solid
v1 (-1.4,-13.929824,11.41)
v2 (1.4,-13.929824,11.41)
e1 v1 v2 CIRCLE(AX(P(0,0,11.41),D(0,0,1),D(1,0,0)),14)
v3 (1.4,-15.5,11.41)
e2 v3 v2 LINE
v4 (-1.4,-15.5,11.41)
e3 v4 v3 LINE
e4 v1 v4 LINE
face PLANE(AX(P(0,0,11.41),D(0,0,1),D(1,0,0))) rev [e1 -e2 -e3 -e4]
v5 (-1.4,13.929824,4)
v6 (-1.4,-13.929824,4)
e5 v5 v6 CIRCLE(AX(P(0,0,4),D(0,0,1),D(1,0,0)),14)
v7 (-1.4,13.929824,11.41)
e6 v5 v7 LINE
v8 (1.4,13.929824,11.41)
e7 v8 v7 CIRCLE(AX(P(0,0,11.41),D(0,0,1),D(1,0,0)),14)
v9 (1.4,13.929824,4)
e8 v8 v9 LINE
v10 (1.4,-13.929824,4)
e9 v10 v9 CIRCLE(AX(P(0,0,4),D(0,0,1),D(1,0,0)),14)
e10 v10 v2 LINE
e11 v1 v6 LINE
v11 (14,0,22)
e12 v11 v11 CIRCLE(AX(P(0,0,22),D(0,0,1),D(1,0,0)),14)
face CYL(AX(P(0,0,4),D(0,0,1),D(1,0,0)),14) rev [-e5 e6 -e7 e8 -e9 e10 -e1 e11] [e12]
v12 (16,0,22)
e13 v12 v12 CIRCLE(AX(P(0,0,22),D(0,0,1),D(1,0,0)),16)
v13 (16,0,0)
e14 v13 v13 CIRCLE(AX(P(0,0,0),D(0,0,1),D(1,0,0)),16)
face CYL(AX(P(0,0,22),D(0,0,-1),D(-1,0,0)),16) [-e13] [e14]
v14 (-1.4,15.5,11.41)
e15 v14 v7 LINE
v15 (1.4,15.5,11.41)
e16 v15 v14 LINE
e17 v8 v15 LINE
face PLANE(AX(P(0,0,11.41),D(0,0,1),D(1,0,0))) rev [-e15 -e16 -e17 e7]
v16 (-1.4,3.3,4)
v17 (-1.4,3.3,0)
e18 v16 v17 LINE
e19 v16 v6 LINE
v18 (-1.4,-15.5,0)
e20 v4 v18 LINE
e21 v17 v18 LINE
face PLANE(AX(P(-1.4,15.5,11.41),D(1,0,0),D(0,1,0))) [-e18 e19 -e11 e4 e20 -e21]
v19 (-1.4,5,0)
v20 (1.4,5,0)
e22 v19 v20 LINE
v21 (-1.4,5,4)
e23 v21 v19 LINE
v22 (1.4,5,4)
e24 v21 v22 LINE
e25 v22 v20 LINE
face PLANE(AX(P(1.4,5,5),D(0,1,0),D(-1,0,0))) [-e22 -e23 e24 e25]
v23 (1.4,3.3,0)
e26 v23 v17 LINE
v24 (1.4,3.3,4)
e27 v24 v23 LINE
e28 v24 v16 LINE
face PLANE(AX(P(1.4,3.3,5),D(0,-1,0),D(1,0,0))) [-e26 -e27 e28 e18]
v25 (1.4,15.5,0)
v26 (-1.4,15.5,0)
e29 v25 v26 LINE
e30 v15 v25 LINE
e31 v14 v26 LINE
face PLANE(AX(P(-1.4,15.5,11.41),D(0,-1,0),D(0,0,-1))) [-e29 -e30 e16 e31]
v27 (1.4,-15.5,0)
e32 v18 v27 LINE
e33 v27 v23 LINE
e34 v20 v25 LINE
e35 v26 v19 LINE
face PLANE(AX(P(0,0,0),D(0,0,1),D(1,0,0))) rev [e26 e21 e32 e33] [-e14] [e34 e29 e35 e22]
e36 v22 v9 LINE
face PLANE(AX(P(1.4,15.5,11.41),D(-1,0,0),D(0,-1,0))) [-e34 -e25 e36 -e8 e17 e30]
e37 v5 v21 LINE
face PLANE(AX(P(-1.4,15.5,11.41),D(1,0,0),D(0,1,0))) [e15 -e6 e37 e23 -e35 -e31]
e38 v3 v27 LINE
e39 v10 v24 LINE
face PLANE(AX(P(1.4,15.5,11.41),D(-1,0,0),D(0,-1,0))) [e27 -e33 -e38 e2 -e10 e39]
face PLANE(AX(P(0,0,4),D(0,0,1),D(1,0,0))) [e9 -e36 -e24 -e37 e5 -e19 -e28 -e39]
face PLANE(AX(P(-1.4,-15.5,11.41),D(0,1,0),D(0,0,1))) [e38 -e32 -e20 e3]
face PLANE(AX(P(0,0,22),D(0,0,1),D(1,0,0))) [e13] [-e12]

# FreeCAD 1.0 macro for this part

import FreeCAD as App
import Part
import Sketcher

V = App.Vector


def add_polygon(sketch, points):
    """Adds a closed chain of lines whose ends are joined by coincident constraints."""
    first, n = sketch.GeometryCount, len(points)
    for a, b in zip(points, points[1:] + points[:1]):
        sketch.addGeometry(Part.LineSegment(App.Vector(*a, 0), App.Vector(*b, 0)), False)
    for i in range(n):
        sketch.addConstraint(Sketcher.Constraint("Coincident", first + i, 2, first + (i + 1) % n, 1))

doc = App.newDocument("Part")
body = doc.addObject("PartDesign::Body", "Body")

# Sketch on XY plane
sketch1 = body.newObject("Sketcher::SketchObject", "Sketch")
sketch1.AttachmentSupport = (doc.getObject("XY_Plane"), [""])
sketch1.MapMode = "FlatFace"
sketch1.addGeometry(Part.Circle(V(0, 0, 0), V(0, 0, 1), 16), False)
sketch1.addConstraint(Sketcher.Constraint("Coincident", 0, 3, -1, 1))
sketch1.addConstraint(Sketcher.Constraint("Diameter", 0, 32.0))
pad1 = body.newObject("PartDesign::Pad", "Pad")
pad1.Profile = sketch1
pad1.Length = 22

# Sketch on XY plane
sketch2 = body.newObject("Sketcher::SketchObject", "Sketch001")
sketch2.AttachmentSupport = (doc.getObject("XY_Plane"), [""])
sketch2.MapMode = "FlatFace"
add_polygon(sketch2, [(-1.4, 15.5), (-1.4, -15.5), (1.4, -15.5), (1.4, 15.5)])  # lines 0-3
sketch2.addConstraint(Sketcher.Constraint("Vertical", 0))
sketch2.addConstraint(Sketcher.Constraint("Horizontal", 1))
sketch2.addConstraint(Sketcher.Constraint("Vertical", 2))
sketch2.addConstraint(Sketcher.Constraint("Horizontal", 3))
sketch2.addConstraint(Sketcher.Constraint("Symmetric", 0, 2, 2, 2, -1, 1))
sketch2.addConstraint(Sketcher.Constraint("DistanceY", 0, 2, 0, 1, 31.0))
sketch2.addConstraint(Sketcher.Constraint("DistanceX", 1, 1, 1, 2, 2.8))
pocket1 = body.newObject("PartDesign::Pocket", "Pocket")
pocket1.Profile = sketch2
pocket1.Length = 11.41
pocket1.Reversed = True

# Sketch on XY plane
sketch3 = body.newObject("Sketcher::SketchObject", "Sketch002")
sketch3.AttachmentSupport = (doc.getObject("XY_Plane"), [""])
sketch3.MapMode = "FlatFace"
add_polygon(sketch3, [(1.4, 5), (1.4, 3.3), (-1.4, 3.3), (-1.4, 5)])  # lines 0-3
sketch3.addConstraint(Sketcher.Constraint("Vertical", 0))
sketch3.addConstraint(Sketcher.Constraint("Horizontal", 1))
sketch3.addConstraint(Sketcher.Constraint("Vertical", 2))
sketch3.addConstraint(Sketcher.Constraint("Horizontal", 3))
sketch3.addConstraint(Sketcher.Constraint("DistanceX", 1, 2, 1, 1, 2.8))
sketch3.addConstraint(Sketcher.Constraint("DistanceY", 0, 2, 0, 1, 1.7))
sketch3.addConstraint(Sketcher.Constraint("DistanceY", -1, 1, 2, 2, 5.0))
sketch3.addConstraint(Sketcher.Constraint("DistanceX", -1, 1, 0, 2, 1.4))
pad2 = body.newObject("PartDesign::Pad", "Pad001")
pad2.Profile = sketch3
pad2.Length = 5

# Sketch on XY plane
sketch4 = body.newObject("Sketcher::SketchObject", "Sketch003")
sketch4.AttachmentSupport = (doc.getObject("XY_Plane"), [""])
sketch4.MapMode = "FlatFace"
sketch4.AttachmentOffset = App.Placement(V(0, 0, 22), App.Rotation())
sketch4.addGeometry(Part.Circle(V(0, 0, 0), V(0, 0, 1), 14), False)
sketch4.addConstraint(Sketcher.Constraint("Coincident", 0, 3, -1, 1))
sketch4.addConstraint(Sketcher.Constraint("Diameter", 0, 28.0))
pocket2 = body.newObject("PartDesign::Pocket", "Pocket001")
pocket2.Profile = sketch4
pocket2.Length = 18

doc.recompute()
